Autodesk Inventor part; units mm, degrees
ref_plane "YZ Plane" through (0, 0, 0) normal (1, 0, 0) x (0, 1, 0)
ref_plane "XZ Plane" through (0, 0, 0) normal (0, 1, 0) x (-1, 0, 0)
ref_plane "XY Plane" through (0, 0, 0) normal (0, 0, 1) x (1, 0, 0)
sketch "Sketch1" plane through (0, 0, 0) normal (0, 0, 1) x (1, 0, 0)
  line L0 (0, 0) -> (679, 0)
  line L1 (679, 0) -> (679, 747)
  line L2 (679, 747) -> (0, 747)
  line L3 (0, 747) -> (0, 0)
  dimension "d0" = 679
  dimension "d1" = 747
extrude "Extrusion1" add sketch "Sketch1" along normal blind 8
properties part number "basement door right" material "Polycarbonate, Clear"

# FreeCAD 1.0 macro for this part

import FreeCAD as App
import Part
import Sketcher

V = App.Vector


def add_polygon(sketch, points):
    """Adds a closed chain of lines whose ends are joined by coincident constraints."""
    first, n = sketch.GeometryCount, len(points)
    for a, b in zip(points, points[1:] + points[:1]):
        sketch.addGeometry(Part.LineSegment(App.Vector(*a, 0), App.Vector(*b, 0)), False)
    for i in range(n):
        sketch.addConstraint(Sketcher.Constraint("Coincident", first + i, 2, first + (i + 1) % n, 1))

doc = App.newDocument("Part")
params = doc.addObject("Spreadsheet::Sheet", "Params")
for row, (alias, value) in enumerate([
    ("sketch1_width", "679 mm"),
    ("sketch1_height", "747 mm"),
    ("pad1_length", "8 mm"),
], start=1):
    params.set(f"A{row}", alias)
    params.set(f"B{row}", "=" + value)
    params.setAlias(f"B{row}", alias)

body = doc.addObject("PartDesign::Body", "Body")

# Sketch on XY plane
sketch1 = doc.addObject("Sketcher::SketchObject", "Sketch")
body.addObject(sketch1)
sketch1.AttachmentSupport = (doc.XY_Plane, [""])
sketch1.MapMode = "FlatFace"
add_polygon(sketch1, [(0, 747), (0, 0), (679, 0), (679, 747)])  # lines 0-3
sketch1.addConstraint([
    Sketcher.Constraint("Vertical", 0),
    Sketcher.Constraint("Horizontal", 1),
    Sketcher.Constraint("Vertical", 2),
    Sketcher.Constraint("Horizontal", 3),
    Sketcher.Constraint("Coincident", 0, 2, -1, 1),
    Sketcher.Constraint("DistanceX", 1, 1, 1, 2, 679.0),
    Sketcher.Constraint("DistanceY", 0, 2, 0, 1, 747.0),
])
sketch1.setExpression("Constraints[9]", "Params.sketch1_width")
sketch1.setExpression("Constraints[10]", "Params.sketch1_height")
pad1 = doc.addObject("PartDesign::Pad", "Pad")
body.addObject(pad1)
pad1.Profile = sketch1
pad1.setExpression("Length", "Params.pad1_length")

doc.recompute()
